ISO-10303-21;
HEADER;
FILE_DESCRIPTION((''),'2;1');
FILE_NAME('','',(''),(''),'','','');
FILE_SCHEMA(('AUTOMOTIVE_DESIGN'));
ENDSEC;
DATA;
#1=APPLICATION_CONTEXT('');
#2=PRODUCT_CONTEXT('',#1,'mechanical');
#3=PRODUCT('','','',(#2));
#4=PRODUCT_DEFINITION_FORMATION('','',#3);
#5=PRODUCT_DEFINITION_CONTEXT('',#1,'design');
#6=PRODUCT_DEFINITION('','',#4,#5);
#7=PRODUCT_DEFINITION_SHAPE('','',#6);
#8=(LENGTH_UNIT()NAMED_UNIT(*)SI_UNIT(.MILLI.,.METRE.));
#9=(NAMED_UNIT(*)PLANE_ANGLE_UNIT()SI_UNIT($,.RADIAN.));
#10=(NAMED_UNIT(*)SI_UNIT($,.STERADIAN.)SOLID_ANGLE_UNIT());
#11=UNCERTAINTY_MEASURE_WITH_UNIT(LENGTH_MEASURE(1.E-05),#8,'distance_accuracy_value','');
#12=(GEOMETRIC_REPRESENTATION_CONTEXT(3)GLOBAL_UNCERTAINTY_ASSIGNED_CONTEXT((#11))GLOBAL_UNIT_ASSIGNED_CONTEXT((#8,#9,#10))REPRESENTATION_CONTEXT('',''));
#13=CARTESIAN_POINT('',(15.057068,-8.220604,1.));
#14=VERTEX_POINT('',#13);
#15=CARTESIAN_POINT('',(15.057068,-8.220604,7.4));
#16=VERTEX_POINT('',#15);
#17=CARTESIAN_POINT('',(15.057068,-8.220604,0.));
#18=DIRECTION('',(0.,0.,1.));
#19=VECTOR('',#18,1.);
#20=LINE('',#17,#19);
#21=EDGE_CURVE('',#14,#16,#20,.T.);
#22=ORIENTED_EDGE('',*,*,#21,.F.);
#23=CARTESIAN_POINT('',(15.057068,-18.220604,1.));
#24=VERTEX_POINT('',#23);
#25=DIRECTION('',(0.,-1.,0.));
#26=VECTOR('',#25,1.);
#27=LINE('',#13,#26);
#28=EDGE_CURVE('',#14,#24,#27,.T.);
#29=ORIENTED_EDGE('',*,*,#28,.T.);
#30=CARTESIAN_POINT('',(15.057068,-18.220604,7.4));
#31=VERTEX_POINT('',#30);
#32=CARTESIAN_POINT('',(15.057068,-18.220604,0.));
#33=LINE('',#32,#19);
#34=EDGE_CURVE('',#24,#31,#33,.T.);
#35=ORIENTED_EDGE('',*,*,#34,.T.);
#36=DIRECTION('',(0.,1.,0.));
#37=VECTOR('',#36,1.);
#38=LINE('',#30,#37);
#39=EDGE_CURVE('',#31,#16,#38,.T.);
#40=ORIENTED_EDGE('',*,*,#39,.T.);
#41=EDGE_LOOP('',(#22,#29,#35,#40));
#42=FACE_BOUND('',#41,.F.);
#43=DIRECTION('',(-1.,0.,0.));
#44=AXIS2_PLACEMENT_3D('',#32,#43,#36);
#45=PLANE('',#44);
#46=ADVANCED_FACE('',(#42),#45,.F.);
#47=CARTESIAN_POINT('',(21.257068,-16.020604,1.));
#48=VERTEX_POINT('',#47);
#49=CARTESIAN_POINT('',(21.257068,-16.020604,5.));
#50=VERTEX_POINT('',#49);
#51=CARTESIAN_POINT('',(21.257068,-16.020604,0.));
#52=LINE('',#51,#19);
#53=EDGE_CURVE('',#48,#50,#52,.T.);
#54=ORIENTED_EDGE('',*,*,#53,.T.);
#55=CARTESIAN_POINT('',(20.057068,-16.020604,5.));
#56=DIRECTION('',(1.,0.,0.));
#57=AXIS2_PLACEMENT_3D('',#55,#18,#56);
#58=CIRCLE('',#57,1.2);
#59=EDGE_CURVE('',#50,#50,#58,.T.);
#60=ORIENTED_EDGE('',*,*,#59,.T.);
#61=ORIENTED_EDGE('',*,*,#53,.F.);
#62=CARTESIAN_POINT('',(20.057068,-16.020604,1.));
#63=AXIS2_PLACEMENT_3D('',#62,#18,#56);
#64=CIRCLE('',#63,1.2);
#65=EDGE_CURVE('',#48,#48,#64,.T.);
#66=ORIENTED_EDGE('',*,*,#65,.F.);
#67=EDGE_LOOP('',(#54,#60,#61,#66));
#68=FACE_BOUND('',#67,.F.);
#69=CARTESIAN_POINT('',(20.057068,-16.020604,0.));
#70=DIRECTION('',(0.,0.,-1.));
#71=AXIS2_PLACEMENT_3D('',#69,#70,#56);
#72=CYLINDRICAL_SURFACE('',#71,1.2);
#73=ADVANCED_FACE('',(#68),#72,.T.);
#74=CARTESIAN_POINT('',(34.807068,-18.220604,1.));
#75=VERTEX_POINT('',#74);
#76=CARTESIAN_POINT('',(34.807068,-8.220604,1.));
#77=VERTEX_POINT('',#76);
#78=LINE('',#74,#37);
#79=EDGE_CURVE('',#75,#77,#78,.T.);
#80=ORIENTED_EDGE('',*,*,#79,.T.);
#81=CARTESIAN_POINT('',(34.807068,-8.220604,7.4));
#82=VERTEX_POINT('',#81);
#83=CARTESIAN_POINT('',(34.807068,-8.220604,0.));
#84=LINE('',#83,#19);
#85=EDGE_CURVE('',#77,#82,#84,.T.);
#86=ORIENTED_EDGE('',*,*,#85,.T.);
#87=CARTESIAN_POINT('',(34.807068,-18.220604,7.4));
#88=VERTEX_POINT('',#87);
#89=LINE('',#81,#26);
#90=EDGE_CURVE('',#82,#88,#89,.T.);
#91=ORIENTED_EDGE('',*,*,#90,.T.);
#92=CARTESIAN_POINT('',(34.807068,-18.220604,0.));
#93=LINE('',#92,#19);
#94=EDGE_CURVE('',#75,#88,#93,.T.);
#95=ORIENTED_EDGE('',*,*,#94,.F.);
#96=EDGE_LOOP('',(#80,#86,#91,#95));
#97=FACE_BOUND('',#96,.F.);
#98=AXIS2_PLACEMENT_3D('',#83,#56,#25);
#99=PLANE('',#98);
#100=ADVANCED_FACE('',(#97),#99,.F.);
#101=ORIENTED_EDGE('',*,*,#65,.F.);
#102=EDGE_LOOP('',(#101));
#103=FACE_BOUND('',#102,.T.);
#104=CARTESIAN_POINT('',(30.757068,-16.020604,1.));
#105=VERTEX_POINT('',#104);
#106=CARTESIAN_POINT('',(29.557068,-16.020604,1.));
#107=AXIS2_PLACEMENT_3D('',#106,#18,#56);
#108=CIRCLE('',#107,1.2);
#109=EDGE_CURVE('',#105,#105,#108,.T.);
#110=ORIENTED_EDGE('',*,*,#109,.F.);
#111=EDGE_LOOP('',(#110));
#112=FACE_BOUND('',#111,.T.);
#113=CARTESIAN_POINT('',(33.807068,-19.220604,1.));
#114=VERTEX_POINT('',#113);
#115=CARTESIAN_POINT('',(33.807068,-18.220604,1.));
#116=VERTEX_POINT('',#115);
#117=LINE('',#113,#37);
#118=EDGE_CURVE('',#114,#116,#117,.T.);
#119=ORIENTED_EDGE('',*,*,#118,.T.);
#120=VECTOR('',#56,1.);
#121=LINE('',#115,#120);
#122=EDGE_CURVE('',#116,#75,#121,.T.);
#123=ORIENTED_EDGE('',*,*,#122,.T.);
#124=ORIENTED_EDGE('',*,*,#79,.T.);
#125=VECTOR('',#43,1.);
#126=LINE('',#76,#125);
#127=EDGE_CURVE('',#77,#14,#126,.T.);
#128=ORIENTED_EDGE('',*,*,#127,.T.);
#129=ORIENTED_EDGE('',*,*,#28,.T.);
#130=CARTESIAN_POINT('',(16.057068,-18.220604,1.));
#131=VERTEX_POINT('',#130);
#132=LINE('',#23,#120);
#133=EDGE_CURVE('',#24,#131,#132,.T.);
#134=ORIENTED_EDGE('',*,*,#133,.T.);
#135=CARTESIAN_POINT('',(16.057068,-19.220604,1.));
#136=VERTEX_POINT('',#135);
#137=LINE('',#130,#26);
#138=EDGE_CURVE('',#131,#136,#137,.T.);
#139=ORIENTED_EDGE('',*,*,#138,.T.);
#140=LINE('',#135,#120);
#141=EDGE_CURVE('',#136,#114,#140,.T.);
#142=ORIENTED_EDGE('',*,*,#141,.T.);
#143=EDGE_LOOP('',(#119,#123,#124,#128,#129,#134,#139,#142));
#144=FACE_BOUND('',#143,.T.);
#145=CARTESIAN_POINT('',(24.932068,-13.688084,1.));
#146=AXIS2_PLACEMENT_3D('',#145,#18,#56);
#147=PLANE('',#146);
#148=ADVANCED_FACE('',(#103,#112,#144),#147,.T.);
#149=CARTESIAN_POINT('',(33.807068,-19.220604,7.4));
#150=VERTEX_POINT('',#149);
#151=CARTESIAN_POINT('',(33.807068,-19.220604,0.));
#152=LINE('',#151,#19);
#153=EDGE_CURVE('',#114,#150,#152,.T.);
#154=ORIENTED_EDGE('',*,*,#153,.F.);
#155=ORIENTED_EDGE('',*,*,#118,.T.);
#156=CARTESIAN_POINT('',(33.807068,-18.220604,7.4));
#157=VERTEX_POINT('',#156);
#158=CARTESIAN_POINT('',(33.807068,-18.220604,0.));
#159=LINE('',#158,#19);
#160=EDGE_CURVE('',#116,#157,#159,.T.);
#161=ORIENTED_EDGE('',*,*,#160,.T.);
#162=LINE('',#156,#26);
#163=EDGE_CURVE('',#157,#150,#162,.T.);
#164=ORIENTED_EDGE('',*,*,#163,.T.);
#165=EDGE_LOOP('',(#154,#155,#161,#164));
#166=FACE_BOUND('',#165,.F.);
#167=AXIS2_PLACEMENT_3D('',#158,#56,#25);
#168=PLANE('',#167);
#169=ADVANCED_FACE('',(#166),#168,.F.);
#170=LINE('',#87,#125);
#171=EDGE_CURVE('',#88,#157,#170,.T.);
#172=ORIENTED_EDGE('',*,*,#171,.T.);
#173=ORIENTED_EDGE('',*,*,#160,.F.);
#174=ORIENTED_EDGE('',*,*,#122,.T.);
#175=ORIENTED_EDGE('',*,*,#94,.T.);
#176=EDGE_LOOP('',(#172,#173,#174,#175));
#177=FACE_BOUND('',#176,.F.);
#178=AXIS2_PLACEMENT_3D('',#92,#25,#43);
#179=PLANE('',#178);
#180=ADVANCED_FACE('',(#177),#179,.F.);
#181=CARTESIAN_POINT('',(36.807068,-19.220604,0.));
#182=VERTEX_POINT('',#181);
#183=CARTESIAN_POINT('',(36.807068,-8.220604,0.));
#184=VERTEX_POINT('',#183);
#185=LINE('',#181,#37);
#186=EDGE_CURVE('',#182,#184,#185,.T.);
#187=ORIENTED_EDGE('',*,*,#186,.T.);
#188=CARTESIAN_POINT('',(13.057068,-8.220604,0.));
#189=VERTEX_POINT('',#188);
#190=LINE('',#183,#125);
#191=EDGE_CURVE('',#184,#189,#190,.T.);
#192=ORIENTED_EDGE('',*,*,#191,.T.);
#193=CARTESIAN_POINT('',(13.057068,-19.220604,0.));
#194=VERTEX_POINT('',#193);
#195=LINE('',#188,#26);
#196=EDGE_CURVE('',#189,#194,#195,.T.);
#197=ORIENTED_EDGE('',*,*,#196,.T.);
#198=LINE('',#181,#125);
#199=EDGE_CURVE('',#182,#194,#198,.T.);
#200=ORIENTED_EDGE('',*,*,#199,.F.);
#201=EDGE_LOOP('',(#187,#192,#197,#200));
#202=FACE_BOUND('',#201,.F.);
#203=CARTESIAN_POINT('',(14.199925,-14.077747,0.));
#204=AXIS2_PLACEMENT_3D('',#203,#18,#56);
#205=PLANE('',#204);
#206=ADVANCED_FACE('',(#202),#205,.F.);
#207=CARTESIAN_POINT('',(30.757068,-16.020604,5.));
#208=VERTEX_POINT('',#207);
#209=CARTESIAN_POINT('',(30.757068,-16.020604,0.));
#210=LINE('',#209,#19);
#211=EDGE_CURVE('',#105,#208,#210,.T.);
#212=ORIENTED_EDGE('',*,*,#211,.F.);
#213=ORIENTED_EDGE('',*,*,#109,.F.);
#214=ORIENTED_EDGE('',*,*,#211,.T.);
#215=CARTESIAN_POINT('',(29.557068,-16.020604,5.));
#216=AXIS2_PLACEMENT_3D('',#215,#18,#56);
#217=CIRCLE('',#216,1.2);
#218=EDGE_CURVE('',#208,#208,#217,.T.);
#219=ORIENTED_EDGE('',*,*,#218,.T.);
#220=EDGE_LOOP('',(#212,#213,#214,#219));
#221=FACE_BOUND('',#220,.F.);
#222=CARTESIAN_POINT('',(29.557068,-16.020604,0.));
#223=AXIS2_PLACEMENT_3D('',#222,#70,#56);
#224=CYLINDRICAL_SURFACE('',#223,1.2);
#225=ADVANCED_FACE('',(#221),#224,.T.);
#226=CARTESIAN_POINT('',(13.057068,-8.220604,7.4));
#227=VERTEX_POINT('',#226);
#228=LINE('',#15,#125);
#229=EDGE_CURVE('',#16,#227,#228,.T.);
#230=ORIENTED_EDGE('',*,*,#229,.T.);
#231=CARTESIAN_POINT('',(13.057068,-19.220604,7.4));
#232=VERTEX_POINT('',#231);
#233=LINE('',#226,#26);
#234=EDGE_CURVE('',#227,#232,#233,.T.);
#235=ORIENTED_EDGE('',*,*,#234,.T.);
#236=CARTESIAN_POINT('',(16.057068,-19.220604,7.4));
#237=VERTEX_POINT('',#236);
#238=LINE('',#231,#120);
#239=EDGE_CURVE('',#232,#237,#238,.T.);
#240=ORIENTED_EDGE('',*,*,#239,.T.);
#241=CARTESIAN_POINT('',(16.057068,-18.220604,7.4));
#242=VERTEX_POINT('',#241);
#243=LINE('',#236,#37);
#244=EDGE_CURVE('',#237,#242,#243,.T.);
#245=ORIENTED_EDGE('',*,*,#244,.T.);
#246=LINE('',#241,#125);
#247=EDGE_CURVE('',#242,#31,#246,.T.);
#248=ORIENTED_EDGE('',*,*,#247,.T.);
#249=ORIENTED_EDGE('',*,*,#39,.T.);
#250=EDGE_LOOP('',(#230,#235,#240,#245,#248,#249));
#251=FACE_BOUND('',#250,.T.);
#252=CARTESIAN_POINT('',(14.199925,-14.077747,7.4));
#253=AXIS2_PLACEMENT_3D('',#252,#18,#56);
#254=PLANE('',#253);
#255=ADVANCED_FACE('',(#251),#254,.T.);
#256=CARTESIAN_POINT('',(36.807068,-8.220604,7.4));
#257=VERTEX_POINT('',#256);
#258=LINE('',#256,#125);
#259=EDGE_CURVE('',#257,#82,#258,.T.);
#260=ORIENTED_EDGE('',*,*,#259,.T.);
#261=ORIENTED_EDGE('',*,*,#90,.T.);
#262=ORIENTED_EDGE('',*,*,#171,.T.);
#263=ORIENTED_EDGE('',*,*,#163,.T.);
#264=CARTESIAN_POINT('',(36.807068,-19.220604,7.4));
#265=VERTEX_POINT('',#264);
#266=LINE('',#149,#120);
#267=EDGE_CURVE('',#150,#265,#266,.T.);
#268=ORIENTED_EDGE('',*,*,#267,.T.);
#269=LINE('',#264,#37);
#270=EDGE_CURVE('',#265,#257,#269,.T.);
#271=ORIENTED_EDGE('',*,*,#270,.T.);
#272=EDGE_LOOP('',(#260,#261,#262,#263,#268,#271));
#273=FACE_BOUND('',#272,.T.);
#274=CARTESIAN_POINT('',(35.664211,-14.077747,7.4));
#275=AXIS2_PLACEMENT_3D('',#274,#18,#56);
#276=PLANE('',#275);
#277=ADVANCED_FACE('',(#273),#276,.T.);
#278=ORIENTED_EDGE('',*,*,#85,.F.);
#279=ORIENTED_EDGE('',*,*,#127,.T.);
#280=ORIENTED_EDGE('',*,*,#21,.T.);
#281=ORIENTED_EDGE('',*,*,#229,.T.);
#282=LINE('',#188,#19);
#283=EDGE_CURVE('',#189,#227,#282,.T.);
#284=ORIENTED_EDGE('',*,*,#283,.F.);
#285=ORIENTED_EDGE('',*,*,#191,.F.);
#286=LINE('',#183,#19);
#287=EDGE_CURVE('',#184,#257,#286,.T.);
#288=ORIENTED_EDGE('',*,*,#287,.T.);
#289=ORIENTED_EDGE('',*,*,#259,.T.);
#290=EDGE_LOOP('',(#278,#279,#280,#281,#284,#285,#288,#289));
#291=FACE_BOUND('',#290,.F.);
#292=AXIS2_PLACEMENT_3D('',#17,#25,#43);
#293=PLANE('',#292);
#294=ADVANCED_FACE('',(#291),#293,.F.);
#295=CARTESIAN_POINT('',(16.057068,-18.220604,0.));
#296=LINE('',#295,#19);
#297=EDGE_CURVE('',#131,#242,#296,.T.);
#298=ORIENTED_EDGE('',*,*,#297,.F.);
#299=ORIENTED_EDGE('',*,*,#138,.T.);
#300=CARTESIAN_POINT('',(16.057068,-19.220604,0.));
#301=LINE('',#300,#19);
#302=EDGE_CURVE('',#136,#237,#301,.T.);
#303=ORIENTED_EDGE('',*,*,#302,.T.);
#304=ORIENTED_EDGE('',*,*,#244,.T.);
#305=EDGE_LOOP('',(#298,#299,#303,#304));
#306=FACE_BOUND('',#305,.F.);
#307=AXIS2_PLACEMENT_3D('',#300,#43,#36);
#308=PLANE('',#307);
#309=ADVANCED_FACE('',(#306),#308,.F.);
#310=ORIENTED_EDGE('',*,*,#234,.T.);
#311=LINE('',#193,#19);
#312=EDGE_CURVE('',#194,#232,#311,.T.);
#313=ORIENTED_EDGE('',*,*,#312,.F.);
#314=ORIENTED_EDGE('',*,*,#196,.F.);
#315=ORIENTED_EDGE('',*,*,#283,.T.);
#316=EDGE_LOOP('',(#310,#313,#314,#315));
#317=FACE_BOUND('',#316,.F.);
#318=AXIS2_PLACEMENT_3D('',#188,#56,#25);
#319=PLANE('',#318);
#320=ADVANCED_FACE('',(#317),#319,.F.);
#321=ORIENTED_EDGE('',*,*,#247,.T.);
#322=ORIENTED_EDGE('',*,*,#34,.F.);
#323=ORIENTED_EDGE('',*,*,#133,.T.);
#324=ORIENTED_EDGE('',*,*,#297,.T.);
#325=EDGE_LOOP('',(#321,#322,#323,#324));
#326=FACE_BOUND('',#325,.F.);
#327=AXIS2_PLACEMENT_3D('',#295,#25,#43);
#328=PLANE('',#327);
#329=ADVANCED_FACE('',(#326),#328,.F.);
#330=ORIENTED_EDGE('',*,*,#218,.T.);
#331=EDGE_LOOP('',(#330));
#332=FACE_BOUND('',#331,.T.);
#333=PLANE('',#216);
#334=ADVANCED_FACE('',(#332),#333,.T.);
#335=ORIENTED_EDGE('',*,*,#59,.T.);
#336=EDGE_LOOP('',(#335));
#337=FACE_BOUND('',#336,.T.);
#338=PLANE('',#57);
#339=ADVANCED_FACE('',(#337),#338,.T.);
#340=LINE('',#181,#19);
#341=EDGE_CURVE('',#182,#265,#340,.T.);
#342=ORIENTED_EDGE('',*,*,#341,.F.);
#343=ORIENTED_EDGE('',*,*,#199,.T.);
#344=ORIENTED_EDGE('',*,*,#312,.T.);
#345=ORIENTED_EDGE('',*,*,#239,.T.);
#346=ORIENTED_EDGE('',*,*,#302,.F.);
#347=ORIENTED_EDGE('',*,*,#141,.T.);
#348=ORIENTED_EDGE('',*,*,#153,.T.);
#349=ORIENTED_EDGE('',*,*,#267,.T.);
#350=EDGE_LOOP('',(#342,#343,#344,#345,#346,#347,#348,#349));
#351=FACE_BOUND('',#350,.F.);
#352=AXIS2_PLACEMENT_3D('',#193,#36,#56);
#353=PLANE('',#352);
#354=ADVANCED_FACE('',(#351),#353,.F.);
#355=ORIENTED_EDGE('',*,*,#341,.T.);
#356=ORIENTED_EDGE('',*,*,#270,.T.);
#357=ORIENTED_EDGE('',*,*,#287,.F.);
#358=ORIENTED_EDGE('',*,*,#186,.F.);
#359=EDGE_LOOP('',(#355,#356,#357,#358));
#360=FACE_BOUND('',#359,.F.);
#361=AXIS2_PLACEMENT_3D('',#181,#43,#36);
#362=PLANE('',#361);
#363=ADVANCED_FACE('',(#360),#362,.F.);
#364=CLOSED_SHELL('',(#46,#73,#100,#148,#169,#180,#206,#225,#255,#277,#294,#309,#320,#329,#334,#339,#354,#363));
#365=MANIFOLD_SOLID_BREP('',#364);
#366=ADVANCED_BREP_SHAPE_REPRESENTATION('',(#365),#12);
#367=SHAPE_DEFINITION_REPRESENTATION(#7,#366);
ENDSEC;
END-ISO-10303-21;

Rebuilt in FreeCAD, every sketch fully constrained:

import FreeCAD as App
import Part
import Sketcher
from FreeCAD import Vector
Q = App.Units.Quantity

doc = App.newDocument("Part")
params = doc.addObject("Spreadsheet::Sheet", "Params")
for row, (alias, value) in enumerate([
    ("sketch1_diameter", "2.4 mm"),
    ("sketch1_width", "1 mm"),
    ("sketch1_height", "10 mm"),
    ("sketch1_width2", "19.75 mm"),
    ("pad1_length", "1 mm"),
    ("sketch2_width", "2 mm"),
    ("sketch2_width2", "3 mm"),
    ("sketch2_height", "11 mm"),
    ("pad2_length", "7.4 mm"),
    ("sketch3_diameter", "2.4 mm"),
    ("pad3_length", "5 mm"),
], start=1):
    params.set(f"A{row}", alias)
    params.set(f"B{row}", "=" + value)
    params.setAlias(f"B{row}", alias)

body = doc.addObject("PartDesign::Body", "Body")

sketch1 = body.newObject("Sketcher::SketchObject", "Sketch")
sketch1.AttachmentSupport = (doc.getObject("XY_Plane"), [""])
sketch1.MapMode = "FlatFace"
sketch1.addGeometry([
    Part.LineSegment(Vector(34.8, -8.2, 0), Vector(15.1, -8.2, 0)),
    Part.LineSegment(Vector(15.1, -8.2, 0), Vector(15.1, -18.2, 0)),
    Part.LineSegment(Vector(15.1, -18.2, 0), Vector(16.1, -18.2, 0)),
    Part.LineSegment(Vector(16.1, -18.2, 0), Vector(16.1, -19.2, 0)),
    Part.LineSegment(Vector(16.1, -19.2, 0), Vector(33.8, -19.2, 0)),
    Part.LineSegment(Vector(33.8, -19.2, 0), Vector(33.8, -18.2, 0)),
    Part.LineSegment(Vector(33.8, -18.2, 0), Vector(34.8, -18.2, 0)),
    Part.LineSegment(Vector(34.8, -18.2, 0), Vector(34.8, -8.2, 0)),
    Part.Circle(Vector(20.1, -16, 0), Vector(0, 0, 1), 1.2),
    Part.Circle(Vector(29.6, -16, 0), Vector(0, 0, 1), 1.2),
], False)
sketch1.addConstraint([
    Sketcher.Constraint("Coincident", 0, 2, 1, 1),
    Sketcher.Constraint("Coincident", 1, 2, 2, 1),
    Sketcher.Constraint("Coincident", 2, 2, 3, 1),
    Sketcher.Constraint("Coincident", 3, 2, 4, 1),
    Sketcher.Constraint("Coincident", 4, 2, 5, 1),
    Sketcher.Constraint("Coincident", 5, 2, 6, 1),
    Sketcher.Constraint("Coincident", 6, 2, 7, 1),
    Sketcher.Constraint("Coincident", 7, 2, 0, 1),
    Sketcher.Constraint("Horizontal", 0),
    Sketcher.Constraint("Vertical", 1),
    Sketcher.Constraint("Horizontal", 2),
    Sketcher.Constraint("Vertical", 3),
    Sketcher.Constraint("Horizontal", 4),
    Sketcher.Constraint("Vertical", 5),
    Sketcher.Constraint("Horizontal", 6),
    Sketcher.Constraint("Vertical", 7),
    Sketcher.Constraint("Equal", 8, 9),
    Sketcher.Constraint("Horizontal", 8, 3, 9, 3),
    Sketcher.Constraint("Horizontal", 2, 2, 5, 2),
    Sketcher.Constraint("Equal", 2, 6),
    Sketcher.Constraint("Equal", 6, 3),
    Sketcher.Constraint("Diameter", 8, Q("2.4 mm")),
    Sketcher.Constraint("DistanceX", 2, 1, 2, 2, Q("1 mm")),
    Sketcher.Constraint("DistanceY", 1, 2, 1, 1, Q("10 mm")),
    Sketcher.Constraint("DistanceX", 0, 2, 8, 3, Q("5 mm")),
    Sketcher.Constraint("DistanceX", 0, 2, 0, 1, Q("19.75 mm")),
    Sketcher.Constraint("DistanceX", 8, 3, 9, 3, Q("9.5 mm")),
    Sketcher.Constraint("DistanceY", 8, 3, 0, 2, Q("7.8 mm")),
    Sketcher.Constraint("DistanceX", -1, 1, 8, 3, Q("20.057068 mm")),
    Sketcher.Constraint("DistanceY", 8, 3, -1, 1, Q("16.020604 mm")),
])
sketch1.setExpression("Constraints[21]", "Params.sketch1_diameter")
sketch1.setExpression("Constraints[22]", "Params.sketch1_width")
sketch1.setExpression("Constraints[23]", "Params.sketch1_height")
sketch1.setExpression("Constraints[25]", "Params.sketch1_width2")
pad1 = body.newObject("PartDesign::Pad", "Pad")
pad1.Profile = sketch1
pad1.setExpression("Length", "Params.pad1_length")

sketch2 = body.newObject("Sketcher::SketchObject", "Sketch001")
sketch2.AttachmentSupport = (doc.getObject("XY_Plane"), [""])
sketch2.MapMode = "FlatFace"
sketch2.addGeometry([
    Part.LineSegment(Vector(15.1, -8.2, 0), Vector(13.1, -8.2, 0)),
    Part.LineSegment(Vector(13.1, -8.2, 0), Vector(13.1, -19.2, 0)),
    Part.LineSegment(Vector(13.1, -19.2, 0), Vector(16.1, -19.2, 0)),
    Part.LineSegment(Vector(16.1, -19.2, 0), Vector(16.1, -18.2, 0)),
    Part.LineSegment(Vector(16.1, -18.2, 0), Vector(15.1, -18.2, 0)),
    Part.LineSegment(Vector(15.1, -18.2, 0), Vector(15.1, -8.2, 0)),
    Part.LineSegment(Vector(36.8, -8.2, 0), Vector(34.8, -8.2, 0)),
    Part.LineSegment(Vector(34.8, -8.2, 0), Vector(34.8, -18.2, 0)),
    Part.LineSegment(Vector(34.8, -18.2, 0), Vector(33.8, -18.2, 0)),
    Part.LineSegment(Vector(33.8, -18.2, 0), Vector(33.8, -19.2, 0)),
    Part.LineSegment(Vector(33.8, -19.2, 0), Vector(36.8, -19.2, 0)),
    Part.LineSegment(Vector(36.8, -19.2, 0), Vector(36.8, -8.2, 0)),
], False)
sketch2.addConstraint([
    Sketcher.Constraint("Coincident", 0, 2, 1, 1),
    Sketcher.Constraint("Coincident", 1, 2, 2, 1),
    Sketcher.Constraint("Coincident", 2, 2, 3, 1),
    Sketcher.Constraint("Coincident", 3, 2, 4, 1),
    Sketcher.Constraint("Coincident", 4, 2, 5, 1),
    Sketcher.Constraint("Coincident", 5, 2, 0, 1),
    Sketcher.Constraint("Coincident", 6, 2, 7, 1),
    Sketcher.Constraint("Coincident", 7, 2, 8, 1),
    Sketcher.Constraint("Coincident", 8, 2, 9, 1),
    Sketcher.Constraint("Coincident", 9, 2, 10, 1),
    Sketcher.Constraint("Coincident", 10, 2, 11, 1),
    Sketcher.Constraint("Coincident", 11, 2, 6, 1),
    Sketcher.Constraint("Horizontal", 0),
    Sketcher.Constraint("Vertical", 1),
    Sketcher.Constraint("Horizontal", 2),
    Sketcher.Constraint("Vertical", 3),
    Sketcher.Constraint("Horizontal", 4),
    Sketcher.Constraint("Vertical", 5),
    Sketcher.Constraint("Horizontal", 6),
    Sketcher.Constraint("Vertical", 7),
    Sketcher.Constraint("Horizontal", 8),
    Sketcher.Constraint("Vertical", 9),
    Sketcher.Constraint("Horizontal", 10),
    Sketcher.Constraint("Vertical", 11),
    Sketcher.Constraint("Horizontal", 5, 2, 6, 2),
    Sketcher.Constraint("Horizontal", 4, 2, 7, 2),
    Sketcher.Constraint("Horizontal", 2, 2, 9, 2),
    Sketcher.Constraint("Equal", 0, 6),
    Sketcher.Constraint("Equal", 4, 8),
    Sketcher.Constraint("Equal", 8, 3),
    Sketcher.Constraint("DistanceX", 0, 2, 0, 1, Q("2 mm")),
    Sketcher.Constraint("DistanceX", 2, 1, 2, 2, Q("3 mm")),
    Sketcher.Constraint("DistanceY", 1, 2, 1, 1, Q("11 mm")),
    Sketcher.Constraint("DistanceX", 5, 2, 6, 2, Q("19.75 mm")),
    Sketcher.Constraint("DistanceX", -1, 1, 2, 2, Q("16.057068 mm")),
    Sketcher.Constraint("DistanceY", 0, 2, -1, 1, Q("8.220604 mm")),
])
sketch2.setExpression("Constraints[30]", "Params.sketch2_width")
sketch2.setExpression("Constraints[31]", "Params.sketch2_width2")
sketch2.setExpression("Constraints[32]", "Params.sketch2_height")
pad2 = body.newObject("PartDesign::Pad", "Pad001")
pad2.Profile = sketch2
pad2.setExpression("Length", "Params.pad2_length")

sketch3 = body.newObject("Sketcher::SketchObject", "Sketch002")
sketch3.AttachmentSupport = (doc.getObject("XY_Plane"), [""])
sketch3.MapMode = "FlatFace"
sketch3.addGeometry([
    Part.Circle(Vector(20.1, -16, 0), Vector(0, 0, 1), 1.2),
    Part.Circle(Vector(29.6, -16, 0), Vector(0, 0, 1), 1.2),
], False)
sketch3.addConstraint([
    Sketcher.Constraint("Equal", 0, 1),
    Sketcher.Constraint("Horizontal", 0, 3, 1, 3),
    Sketcher.Constraint("Diameter", 0, Q("2.4 mm")),
    Sketcher.Constraint("DistanceX", 0, 3, 1, 3, Q("9.5 mm")),
    Sketcher.Constraint("DistanceX", -1, 1, 0, 3, Q("20.057068 mm")),
    Sketcher.Constraint("DistanceY", 0, 3, -1, 1, Q("16.020604 mm")),
])
sketch3.setExpression("Constraints[2]", "Params.sketch3_diameter")
pad3 = body.newObject("PartDesign::Pad", "Pad002")
pad3.Profile = sketch3
pad3.setExpression("Length", "Params.pad3_length")

doc.recompute()
